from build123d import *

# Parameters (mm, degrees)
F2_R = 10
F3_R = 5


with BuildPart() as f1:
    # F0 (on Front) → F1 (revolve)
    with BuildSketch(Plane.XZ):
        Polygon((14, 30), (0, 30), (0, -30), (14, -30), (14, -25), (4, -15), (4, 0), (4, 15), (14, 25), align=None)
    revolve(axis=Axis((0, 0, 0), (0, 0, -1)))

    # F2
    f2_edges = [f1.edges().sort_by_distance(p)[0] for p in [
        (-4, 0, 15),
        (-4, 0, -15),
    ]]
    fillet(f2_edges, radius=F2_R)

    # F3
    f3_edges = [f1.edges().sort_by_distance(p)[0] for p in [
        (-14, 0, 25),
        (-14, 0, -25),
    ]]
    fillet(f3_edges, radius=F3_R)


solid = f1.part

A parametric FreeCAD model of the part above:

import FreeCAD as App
import Part
import Sketcher

V = App.Vector


def edges_at(feature, points):
    """Names of the edges that pass closest to the given points."""
    edges = feature.Shape.Edges
    near = lambda p: min(range(len(edges)), key=lambda i: edges[i].distToShape(Part.Vertex(*p))[0])
    return sorted({f"Edge{near(p) + 1}" for p in points})

doc = App.newDocument("Part")
body = doc.addObject("PartDesign::Body", "Body")

# Sketch on XZ plane
sketch1 = body.newObject("Sketcher::SketchObject", "Sketch")
sketch1.AttachmentSupport = (doc.getObject("XZ_Plane"), [""])
sketch1.MapMode = "FlatFace"
sketch1.addGeometry([
    Part.LineSegment(V(14, 30, 0), V(0, 30, 0)),  # 0
    Part.LineSegment(V(0, 30, 0), V(0, -30, 0)),  # 1
    Part.LineSegment(V(0, -30, 0), V(14, -30, 0)),  # 2
    Part.LineSegment(V(14, -30, 0), V(14, -25, 0)),  # 3
    Part.LineSegment(V(14, -25, 0), V(4, -15, 0)),  # 4
    Part.LineSegment(V(4, -15, 0), V(4, 15, 0)),  # 5
    Part.LineSegment(V(4, 15, 0), V(14, 25, 0)),  # 6
    Part.LineSegment(V(14, 25, 0), V(14, 30, 0)),  # 7
], False)
sketch1.addConstraint([
    Sketcher.Constraint("Coincident", 0, 2, 1, 1),
    Sketcher.Constraint("Coincident", 1, 2, 2, 1),
    Sketcher.Constraint("Coincident", 2, 2, 3, 1),
    Sketcher.Constraint("Coincident", 3, 2, 4, 1),
    Sketcher.Constraint("Coincident", 4, 2, 5, 1),
    Sketcher.Constraint("Coincident", 5, 2, 6, 1),
    Sketcher.Constraint("Coincident", 6, 2, 7, 1),
    Sketcher.Constraint("Coincident", 7, 2, 0, 1),
    Sketcher.Constraint("Horizontal", 0),
    Sketcher.Constraint("Vertical", 1),
    Sketcher.Constraint("Horizontal", 2),
    Sketcher.Constraint("Vertical", 3),
    Sketcher.Constraint("Vertical", 5),
    Sketcher.Constraint("Vertical", 7),
    Sketcher.Constraint("Symmetric", 0, 2, 1, 2, -1, 1),
    Sketcher.Constraint("Symmetric", 3, 2, 6, 2, -1),
    Sketcher.Constraint("Perpendicular", 4, 6),
    Sketcher.Constraint("Equal", 4, 6),
    Sketcher.Constraint("DistanceX", 0, 2, 0, 1, 14.0),
    Sketcher.Constraint("DistanceY", 1, 2, 1, 1, 60.0),
    Sketcher.Constraint("DistanceY", 3, 1, 3, 2, 5.0),
    Sketcher.Constraint("DistanceY", 5, 1, 5, 2, 30.0),
])
revolution = body.newObject("PartDesign::Revolution", "Revolution")
revolution.Profile = sketch1
revolution.ReferenceAxis = (sketch1, ["V_Axis"])
revolution.Angle = 360
doc.recompute()

fillet = body.newObject("PartDesign::Fillet", "Fillet")
fillet.Base = (revolution, edges_at(revolution, [(-4, 0, 15), (-4, 0, -15)]))
fillet.Radius = 10
doc.recompute()

fillet2 = body.newObject("PartDesign::Fillet", "Fillet001")
fillet2.Base = (fillet, edges_at(fillet, [(-14, 0, 25), (-14, 0, -25)]))
fillet2.Radius = 5

doc.recompute()
